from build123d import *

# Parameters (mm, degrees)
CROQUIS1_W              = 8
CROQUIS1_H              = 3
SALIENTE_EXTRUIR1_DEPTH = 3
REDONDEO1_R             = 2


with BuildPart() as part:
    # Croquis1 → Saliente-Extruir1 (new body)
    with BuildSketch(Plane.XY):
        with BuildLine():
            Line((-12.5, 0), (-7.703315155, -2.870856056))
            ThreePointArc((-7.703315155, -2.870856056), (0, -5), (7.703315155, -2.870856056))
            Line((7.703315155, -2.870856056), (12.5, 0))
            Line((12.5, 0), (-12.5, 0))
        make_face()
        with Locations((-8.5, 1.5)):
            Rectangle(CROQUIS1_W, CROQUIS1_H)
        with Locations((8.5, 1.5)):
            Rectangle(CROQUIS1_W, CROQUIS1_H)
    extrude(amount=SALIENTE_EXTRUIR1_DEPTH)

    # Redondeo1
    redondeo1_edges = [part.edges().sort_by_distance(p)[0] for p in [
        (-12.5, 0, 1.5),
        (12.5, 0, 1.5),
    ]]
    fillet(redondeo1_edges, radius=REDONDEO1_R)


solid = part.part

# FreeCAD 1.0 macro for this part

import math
import FreeCAD as App
import Part
import Sketcher
from FreeCAD import Vector
Q = App.Units.Quantity


def edges_at(feature, points):
    """Names of the edges that pass closest to the given points."""
    edges = feature.Shape.Edges
    near = lambda p: min(range(len(edges)), key=lambda i: edges[i].distToShape(Part.Vertex(*p))[0])
    return sorted({f"Edge{near(p) + 1}" for p in points})

doc = App.newDocument("Part")
params = doc.addObject("Spreadsheet::Sheet", "Params")
for row, (alias, value) in enumerate([
    ("sketch1_radius", "15 mm"),
    ("sketch1_width", "8 mm"),
    ("sketch1_width2", "9 mm"),
    ("sketch1_height", "3 mm"),
    ("pad1_length", "3 mm"),
    ("fillet_radius", "2 mm"),
], start=1):
    params.set(f"A{row}", alias)
    params.set(f"B{row}", "=" + value)
    params.setAlias(f"B{row}", alias)

body = doc.addObject("PartDesign::Body", "Body")

# Sketch on XY plane
sketch1 = body.newObject("Sketcher::SketchObject", "Sketch")
sketch1.AttachmentSupport = (doc.getObject("XY_Plane"), [""])
sketch1.MapMode = "FlatFace"
sketch1.addGeometry(Part.LineSegment(Vector(-12.5, 0, 0), Vector(-7.7, -2.9, 0)), False)
sketch1.addGeometry(Part.ArcOfCircle(Part.Circle(Vector(0, 10, 0), Vector(0, 0, 1), 15), math.radians(-121), math.radians(-59)), False)
sketch1.addGeometry(Part.LineSegment(Vector(7.7, -2.9, 0), Vector(12.5, 0, 0)), False)
sketch1.addGeometry(Part.LineSegment(Vector(12.5, 0, 0), Vector(12.5, 3, 0)), False)
sketch1.addGeometry(Part.LineSegment(Vector(12.5, 3, 0), Vector(4.5, 3, 0)), False)
sketch1.addGeometry(Part.LineSegment(Vector(4.5, 3, 0), Vector(4.5, 0, 0)), False)
sketch1.addGeometry(Part.LineSegment(Vector(4.5, 0, 0), Vector(-4.5, 0, 0)), False)
sketch1.addGeometry(Part.LineSegment(Vector(-4.5, 0, 0), Vector(-4.5, 3, 0)), False)
sketch1.addGeometry(Part.LineSegment(Vector(-4.5, 3, 0), Vector(-12.5, 3, 0)), False)
sketch1.addGeometry(Part.LineSegment(Vector(-12.5, 3, 0), Vector(-12.5, 0, 0)), False)
sketch1.addConstraint(Sketcher.Constraint("Tangent", 0, 2, 1, 1))
sketch1.addConstraint(Sketcher.Constraint("Tangent", 1, 2, 2, 1))
sketch1.addConstraint(Sketcher.Constraint("Coincident", 2, 2, 3, 1))
sketch1.addConstraint(Sketcher.Constraint("Coincident", 3, 2, 4, 1))
sketch1.addConstraint(Sketcher.Constraint("Coincident", 4, 2, 5, 1))
sketch1.addConstraint(Sketcher.Constraint("Coincident", 5, 2, 6, 1))
sketch1.addConstraint(Sketcher.Constraint("Coincident", 6, 2, 7, 1))
sketch1.addConstraint(Sketcher.Constraint("Coincident", 7, 2, 8, 1))
sketch1.addConstraint(Sketcher.Constraint("Coincident", 8, 2, 9, 1))
sketch1.addConstraint(Sketcher.Constraint("Coincident", 9, 2, 0, 1))
sketch1.addConstraint(Sketcher.Constraint("Vertical", 3))
sketch1.addConstraint(Sketcher.Constraint("Horizontal", 4))
sketch1.addConstraint(Sketcher.Constraint("Vertical", 5))
sketch1.addConstraint(Sketcher.Constraint("Horizontal", 6))
sketch1.addConstraint(Sketcher.Constraint("Vertical", 7))
sketch1.addConstraint(Sketcher.Constraint("Horizontal", 8))
sketch1.addConstraint(Sketcher.Constraint("Vertical", 9))
sketch1.addConstraint(Sketcher.Constraint("Symmetric", 5, 2, 6, 2, -1, 1))
sketch1.addConstraint(Sketcher.Constraint("Symmetric", 2, 2, 9, 2, -1, 1))
sketch1.addConstraint(Sketcher.Constraint("Symmetric", 0, 2, 1, 2, -2))
sketch1.addConstraint(Sketcher.Constraint("Horizontal", 4, 2, 7, 2))
sketch1.addConstraint(Sketcher.Constraint("Radius", 1, Q("15 mm")))
sketch1.addConstraint(Sketcher.Constraint("DistanceX", 4, 2, 4, 1, Q("8 mm")))
sketch1.addConstraint(Sketcher.Constraint("DistanceX", 6, 2, 6, 1, Q("9 mm")))
sketch1.addConstraint(Sketcher.Constraint("DistanceY", 3, 1, 3, 2, Q("3 mm")))
sketch1.addConstraint(Sketcher.Constraint("DistanceY", -1, 1, 1, 3, Q("10 mm")))
sketch1.setExpression("Constraints[21]", "Params.sketch1_radius")
sketch1.setExpression("Constraints[22]", "Params.sketch1_width")
sketch1.setExpression("Constraints[23]", "Params.sketch1_width2")
sketch1.setExpression("Constraints[24]", "Params.sketch1_height")
pad1 = body.newObject("PartDesign::Pad", "Pad")
pad1.Profile = sketch1
pad1.setExpression("Length", "Params.pad1_length")
doc.recompute()

fillet = body.newObject("PartDesign::Fillet", "Fillet")
fillet.Base = (pad1, edges_at(pad1, [(-12.5, 0, 1.5), (12.5, 0, 1.5)]))
fillet.setExpression("Radius", "Params.fillet_radius")

doc.recompute()
